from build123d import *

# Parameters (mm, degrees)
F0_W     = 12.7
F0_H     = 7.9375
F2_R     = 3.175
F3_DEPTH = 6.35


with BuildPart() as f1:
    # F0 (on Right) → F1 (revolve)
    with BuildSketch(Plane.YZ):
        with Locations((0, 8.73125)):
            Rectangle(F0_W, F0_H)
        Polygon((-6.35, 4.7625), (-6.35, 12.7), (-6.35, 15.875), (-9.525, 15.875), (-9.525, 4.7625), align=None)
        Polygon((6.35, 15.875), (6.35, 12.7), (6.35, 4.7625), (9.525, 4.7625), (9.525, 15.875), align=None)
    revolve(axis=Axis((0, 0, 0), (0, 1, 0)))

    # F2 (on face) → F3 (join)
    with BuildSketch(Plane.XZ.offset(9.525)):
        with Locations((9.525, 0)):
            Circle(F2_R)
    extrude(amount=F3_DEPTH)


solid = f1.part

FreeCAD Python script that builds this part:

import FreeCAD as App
import Part
import Sketcher
from FreeCAD import Vector
Q = App.Units.Quantity

doc = App.newDocument("Part")
body = doc.addObject("PartDesign::Body", "Body")

# Sketch on YZ plane
sketch1 = body.newObject("Sketcher::SketchObject", "Sketch")
sketch1.AttachmentSupport = (doc.getObject("YZ_Plane"), [""])
sketch1.MapMode = "FlatFace"
sketch1.addGeometry([
    Part.LineSegment(Vector(6.35, 12.7, 0), Vector(-6.35, 12.7, 0)),  # 0
    Part.LineSegment(Vector(-6.35, 12.7, 0), Vector(-6.35, 15.875, 0)),  # 1
    Part.LineSegment(Vector(-6.35, 15.875, 0), Vector(-9.525, 15.875, 0)),  # 2
    Part.LineSegment(Vector(-9.525, 15.875, 0), Vector(-9.525, 4.7625, 0)),  # 3
    Part.LineSegment(Vector(-9.525, 4.7625, 0), Vector(9.525, 4.7625, 0)),  # 4
    Part.LineSegment(Vector(9.525, 4.7625, 0), Vector(9.525, 15.875, 0)),  # 5
    Part.LineSegment(Vector(9.525, 15.875, 0), Vector(6.35, 15.875, 0)),  # 6
    Part.LineSegment(Vector(6.35, 15.875, 0), Vector(6.35, 12.7, 0)),  # 7
], False)
sketch1.addConstraint([
    Sketcher.Constraint("Coincident", 0, 2, 1, 1),
    Sketcher.Constraint("Coincident", 1, 2, 2, 1),
    Sketcher.Constraint("Coincident", 2, 2, 3, 1),
    Sketcher.Constraint("Coincident", 3, 2, 4, 1),
    Sketcher.Constraint("Coincident", 4, 2, 5, 1),
    Sketcher.Constraint("Coincident", 5, 2, 6, 1),
    Sketcher.Constraint("Coincident", 6, 2, 7, 1),
    Sketcher.Constraint("Coincident", 7, 2, 0, 1),
    Sketcher.Constraint("Horizontal", 0),
    Sketcher.Constraint("Vertical", 1),
    Sketcher.Constraint("Horizontal", 2),
    Sketcher.Constraint("Vertical", 3),
    Sketcher.Constraint("Horizontal", 4),
    Sketcher.Constraint("Vertical", 5),
    Sketcher.Constraint("Horizontal", 6),
    Sketcher.Constraint("Vertical", 7),
    Sketcher.Constraint("Symmetric", 2, 2, 5, 2, -2),
    Sketcher.Constraint("Equal", 2, 6),
    Sketcher.Constraint("Equal", 6, 1),
    Sketcher.Constraint("DistanceX", 0, 2, 0, 1, Q("0.5 in")),
    Sketcher.Constraint("DistanceX", 4, 1, 4, 2, Q("0.75 in")),
    Sketcher.Constraint("DistanceY", -1, 1, 0, 2, Q("0.5 in")),
    Sketcher.Constraint("DistanceY", 3, 2, 3, 1, Q("0.4375 in")),
])
revolution = body.newObject("PartDesign::Revolution", "Revolution")
revolution.Profile = sketch1
revolution.ReferenceAxis = (sketch1, ["H_Axis"])
revolution.Angle = 360

# Sketch on XZ plane
sketch2 = body.newObject("Sketcher::SketchObject", "Sketch001")
sketch2.AttachmentSupport = (doc.getObject("XZ_Plane"), [""])
sketch2.MapMode = "FlatFace"
sketch2.AttachmentOffset = App.Placement(Vector(0, 0, 0.375 * 25.4), App.Rotation())
sketch2.addGeometry(Part.Circle(Vector(9.525, 0, 0), Vector(0, 0, 1), 3.175), False)
sketch2.addConstraint([
    Sketcher.Constraint("PointOnObject", 0, 3, -1),
    Sketcher.Constraint("Diameter", 0, Q("0.25 in")),
    Sketcher.Constraint("DistanceX", -1, 1, 0, 3, Q("0.375 in")),
])
pad1 = body.newObject("PartDesign::Pad", "Pad")
pad1.Profile = sketch2
pad1.Length = Q("0.25 in")

doc.recompute()
